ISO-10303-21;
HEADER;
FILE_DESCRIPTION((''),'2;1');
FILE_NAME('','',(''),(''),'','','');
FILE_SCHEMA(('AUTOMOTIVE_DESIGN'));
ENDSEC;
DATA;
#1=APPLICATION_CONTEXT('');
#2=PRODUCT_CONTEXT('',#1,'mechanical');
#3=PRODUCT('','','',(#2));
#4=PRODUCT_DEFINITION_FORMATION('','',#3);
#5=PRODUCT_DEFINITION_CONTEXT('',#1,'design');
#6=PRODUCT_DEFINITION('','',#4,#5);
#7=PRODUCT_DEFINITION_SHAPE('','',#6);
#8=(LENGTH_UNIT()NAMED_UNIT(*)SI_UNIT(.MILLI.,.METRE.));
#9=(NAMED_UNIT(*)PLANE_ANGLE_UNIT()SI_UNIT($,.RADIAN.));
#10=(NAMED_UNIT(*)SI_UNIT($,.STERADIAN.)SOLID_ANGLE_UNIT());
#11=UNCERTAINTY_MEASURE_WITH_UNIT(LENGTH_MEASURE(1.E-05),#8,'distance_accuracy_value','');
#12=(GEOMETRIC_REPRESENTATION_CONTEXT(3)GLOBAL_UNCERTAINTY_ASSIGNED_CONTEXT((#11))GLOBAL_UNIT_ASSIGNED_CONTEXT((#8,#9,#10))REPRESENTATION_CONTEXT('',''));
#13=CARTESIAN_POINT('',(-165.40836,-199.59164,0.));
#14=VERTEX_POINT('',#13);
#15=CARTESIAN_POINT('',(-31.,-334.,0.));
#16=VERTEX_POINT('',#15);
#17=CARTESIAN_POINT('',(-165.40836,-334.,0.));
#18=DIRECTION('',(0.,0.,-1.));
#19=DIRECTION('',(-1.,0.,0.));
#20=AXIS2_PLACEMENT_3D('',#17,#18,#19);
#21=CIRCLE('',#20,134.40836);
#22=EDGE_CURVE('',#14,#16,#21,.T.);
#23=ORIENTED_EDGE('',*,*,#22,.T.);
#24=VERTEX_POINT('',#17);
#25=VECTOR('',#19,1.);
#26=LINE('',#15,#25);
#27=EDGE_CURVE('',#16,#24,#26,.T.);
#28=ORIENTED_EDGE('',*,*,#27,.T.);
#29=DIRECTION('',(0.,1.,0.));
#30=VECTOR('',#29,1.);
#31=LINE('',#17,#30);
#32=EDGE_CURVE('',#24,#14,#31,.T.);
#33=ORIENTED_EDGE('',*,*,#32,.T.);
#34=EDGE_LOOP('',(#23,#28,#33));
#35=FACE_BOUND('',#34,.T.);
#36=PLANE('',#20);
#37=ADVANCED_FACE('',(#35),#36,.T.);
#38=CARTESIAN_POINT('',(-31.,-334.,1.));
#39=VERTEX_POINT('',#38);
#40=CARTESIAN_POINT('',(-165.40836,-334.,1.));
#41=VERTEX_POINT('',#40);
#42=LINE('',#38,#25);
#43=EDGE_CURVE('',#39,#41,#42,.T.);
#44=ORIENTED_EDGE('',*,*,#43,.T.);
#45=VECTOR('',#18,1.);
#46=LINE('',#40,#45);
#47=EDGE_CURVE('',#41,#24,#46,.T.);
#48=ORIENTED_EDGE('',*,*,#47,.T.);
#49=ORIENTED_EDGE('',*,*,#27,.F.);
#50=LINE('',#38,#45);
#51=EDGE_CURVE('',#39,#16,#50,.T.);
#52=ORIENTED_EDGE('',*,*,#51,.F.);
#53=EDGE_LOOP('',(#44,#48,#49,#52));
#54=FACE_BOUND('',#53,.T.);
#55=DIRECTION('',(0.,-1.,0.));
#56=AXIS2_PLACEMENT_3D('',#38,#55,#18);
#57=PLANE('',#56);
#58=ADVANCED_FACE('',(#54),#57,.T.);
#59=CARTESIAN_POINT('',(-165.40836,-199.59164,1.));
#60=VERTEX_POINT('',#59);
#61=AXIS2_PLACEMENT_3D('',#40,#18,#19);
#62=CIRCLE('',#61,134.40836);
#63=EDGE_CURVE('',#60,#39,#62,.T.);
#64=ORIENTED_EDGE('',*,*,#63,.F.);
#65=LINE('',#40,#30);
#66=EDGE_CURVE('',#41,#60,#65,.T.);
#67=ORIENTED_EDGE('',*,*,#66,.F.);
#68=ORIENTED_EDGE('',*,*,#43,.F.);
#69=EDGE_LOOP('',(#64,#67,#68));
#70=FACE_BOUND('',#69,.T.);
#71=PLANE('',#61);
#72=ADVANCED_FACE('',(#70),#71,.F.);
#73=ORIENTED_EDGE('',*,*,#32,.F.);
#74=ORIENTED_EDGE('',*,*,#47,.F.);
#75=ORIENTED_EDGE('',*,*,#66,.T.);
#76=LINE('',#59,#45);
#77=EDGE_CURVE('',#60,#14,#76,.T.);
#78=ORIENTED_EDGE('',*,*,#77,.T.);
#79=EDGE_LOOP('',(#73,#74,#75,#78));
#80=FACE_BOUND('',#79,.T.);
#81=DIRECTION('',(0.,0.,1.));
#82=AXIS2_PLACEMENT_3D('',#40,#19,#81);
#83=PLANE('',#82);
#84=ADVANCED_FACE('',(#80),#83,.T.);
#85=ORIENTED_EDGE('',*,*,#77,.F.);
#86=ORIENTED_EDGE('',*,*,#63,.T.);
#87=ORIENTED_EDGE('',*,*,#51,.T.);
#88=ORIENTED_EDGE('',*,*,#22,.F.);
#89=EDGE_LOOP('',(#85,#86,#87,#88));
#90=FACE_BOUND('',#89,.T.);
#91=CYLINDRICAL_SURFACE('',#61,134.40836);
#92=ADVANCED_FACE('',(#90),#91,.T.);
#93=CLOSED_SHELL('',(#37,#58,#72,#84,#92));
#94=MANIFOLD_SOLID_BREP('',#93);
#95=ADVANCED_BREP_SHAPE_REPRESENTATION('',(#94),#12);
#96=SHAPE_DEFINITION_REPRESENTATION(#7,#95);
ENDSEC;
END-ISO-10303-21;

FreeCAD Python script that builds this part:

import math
import FreeCAD as App
import Part
import Sketcher
from FreeCAD import Vector

doc = App.newDocument("Part")
body = doc.addObject("PartDesign::Body", "Body")

# Sketch on XY plane
sketch1 = body.newObject("Sketcher::SketchObject", "Sketch")
sketch1.AttachmentSupport = (doc.getObject("XY_Plane"), [""])
sketch1.MapMode = "FlatFace"
sketch1.addGeometry(Part.LineSegment(Vector(-165, -334, 0), Vector(-31, -334, 0)), False)
sketch1.addGeometry(Part.ArcOfCircle(Part.Circle(Vector(-165, -334, 0), Vector(0, 0, 1), 134), math.radians(0), math.radians(90)), False)
sketch1.addGeometry(Part.LineSegment(Vector(-165, -200, 0), Vector(-165, -334, 0)), False)
sketch1.addConstraint(Sketcher.Constraint("Coincident", 0, 2, 1, 1))
sketch1.addConstraint(Sketcher.Constraint("Coincident", 1, 2, 2, 1))
sketch1.addConstraint(Sketcher.Constraint("Coincident", 2, 2, 0, 1))
sketch1.addConstraint(Sketcher.Constraint("Horizontal", 0))
sketch1.addConstraint(Sketcher.Constraint("Vertical", 2))
sketch1.addConstraint(Sketcher.Constraint("Coincident", 2, 2, 1, 3))
sketch1.addConstraint(Sketcher.Constraint("DistanceY", 1, 3, -1, 1, 334.0))
sketch1.addConstraint(Sketcher.Constraint("DistanceX", 0, 2, -1, 1, 31.0))
sketch1.addConstraint(Sketcher.Constraint("Radius", 1, 134.40836))
pad1 = body.newObject("PartDesign::Pad", "Pad")
pad1.Profile = sketch1
pad1.Length = 1

doc.recompute()
